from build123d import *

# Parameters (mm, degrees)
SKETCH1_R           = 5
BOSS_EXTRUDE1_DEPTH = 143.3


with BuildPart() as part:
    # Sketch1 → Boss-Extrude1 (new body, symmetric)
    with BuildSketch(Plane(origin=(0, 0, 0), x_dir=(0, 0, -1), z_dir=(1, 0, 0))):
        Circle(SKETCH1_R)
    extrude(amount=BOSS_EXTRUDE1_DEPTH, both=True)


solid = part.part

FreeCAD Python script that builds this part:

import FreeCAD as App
import Part
import Sketcher

V = App.Vector

doc = App.newDocument("Part")
body = doc.addObject("PartDesign::Body", "Body")

# Sketch on YZ plane
sketch1 = body.newObject("Sketcher::SketchObject", "Sketch")
sketch1.AttachmentSupport = (doc.getObject("YZ_Plane"), [""])
sketch1.MapMode = "FlatFace"
sketch1.addGeometry(Part.Circle(V(0, 0, 0), V(0, 0, 1), 5), False)
sketch1.addConstraint(Sketcher.Constraint("Coincident", 0, 3, -1, 1))
sketch1.addConstraint(Sketcher.Constraint("Diameter", 0, 10.0))
pad1 = body.newObject("PartDesign::Pad", "Pad")
pad1.Profile = sketch1
pad1.Length = 286.6
pad1.Midplane = True

doc.recompute()
